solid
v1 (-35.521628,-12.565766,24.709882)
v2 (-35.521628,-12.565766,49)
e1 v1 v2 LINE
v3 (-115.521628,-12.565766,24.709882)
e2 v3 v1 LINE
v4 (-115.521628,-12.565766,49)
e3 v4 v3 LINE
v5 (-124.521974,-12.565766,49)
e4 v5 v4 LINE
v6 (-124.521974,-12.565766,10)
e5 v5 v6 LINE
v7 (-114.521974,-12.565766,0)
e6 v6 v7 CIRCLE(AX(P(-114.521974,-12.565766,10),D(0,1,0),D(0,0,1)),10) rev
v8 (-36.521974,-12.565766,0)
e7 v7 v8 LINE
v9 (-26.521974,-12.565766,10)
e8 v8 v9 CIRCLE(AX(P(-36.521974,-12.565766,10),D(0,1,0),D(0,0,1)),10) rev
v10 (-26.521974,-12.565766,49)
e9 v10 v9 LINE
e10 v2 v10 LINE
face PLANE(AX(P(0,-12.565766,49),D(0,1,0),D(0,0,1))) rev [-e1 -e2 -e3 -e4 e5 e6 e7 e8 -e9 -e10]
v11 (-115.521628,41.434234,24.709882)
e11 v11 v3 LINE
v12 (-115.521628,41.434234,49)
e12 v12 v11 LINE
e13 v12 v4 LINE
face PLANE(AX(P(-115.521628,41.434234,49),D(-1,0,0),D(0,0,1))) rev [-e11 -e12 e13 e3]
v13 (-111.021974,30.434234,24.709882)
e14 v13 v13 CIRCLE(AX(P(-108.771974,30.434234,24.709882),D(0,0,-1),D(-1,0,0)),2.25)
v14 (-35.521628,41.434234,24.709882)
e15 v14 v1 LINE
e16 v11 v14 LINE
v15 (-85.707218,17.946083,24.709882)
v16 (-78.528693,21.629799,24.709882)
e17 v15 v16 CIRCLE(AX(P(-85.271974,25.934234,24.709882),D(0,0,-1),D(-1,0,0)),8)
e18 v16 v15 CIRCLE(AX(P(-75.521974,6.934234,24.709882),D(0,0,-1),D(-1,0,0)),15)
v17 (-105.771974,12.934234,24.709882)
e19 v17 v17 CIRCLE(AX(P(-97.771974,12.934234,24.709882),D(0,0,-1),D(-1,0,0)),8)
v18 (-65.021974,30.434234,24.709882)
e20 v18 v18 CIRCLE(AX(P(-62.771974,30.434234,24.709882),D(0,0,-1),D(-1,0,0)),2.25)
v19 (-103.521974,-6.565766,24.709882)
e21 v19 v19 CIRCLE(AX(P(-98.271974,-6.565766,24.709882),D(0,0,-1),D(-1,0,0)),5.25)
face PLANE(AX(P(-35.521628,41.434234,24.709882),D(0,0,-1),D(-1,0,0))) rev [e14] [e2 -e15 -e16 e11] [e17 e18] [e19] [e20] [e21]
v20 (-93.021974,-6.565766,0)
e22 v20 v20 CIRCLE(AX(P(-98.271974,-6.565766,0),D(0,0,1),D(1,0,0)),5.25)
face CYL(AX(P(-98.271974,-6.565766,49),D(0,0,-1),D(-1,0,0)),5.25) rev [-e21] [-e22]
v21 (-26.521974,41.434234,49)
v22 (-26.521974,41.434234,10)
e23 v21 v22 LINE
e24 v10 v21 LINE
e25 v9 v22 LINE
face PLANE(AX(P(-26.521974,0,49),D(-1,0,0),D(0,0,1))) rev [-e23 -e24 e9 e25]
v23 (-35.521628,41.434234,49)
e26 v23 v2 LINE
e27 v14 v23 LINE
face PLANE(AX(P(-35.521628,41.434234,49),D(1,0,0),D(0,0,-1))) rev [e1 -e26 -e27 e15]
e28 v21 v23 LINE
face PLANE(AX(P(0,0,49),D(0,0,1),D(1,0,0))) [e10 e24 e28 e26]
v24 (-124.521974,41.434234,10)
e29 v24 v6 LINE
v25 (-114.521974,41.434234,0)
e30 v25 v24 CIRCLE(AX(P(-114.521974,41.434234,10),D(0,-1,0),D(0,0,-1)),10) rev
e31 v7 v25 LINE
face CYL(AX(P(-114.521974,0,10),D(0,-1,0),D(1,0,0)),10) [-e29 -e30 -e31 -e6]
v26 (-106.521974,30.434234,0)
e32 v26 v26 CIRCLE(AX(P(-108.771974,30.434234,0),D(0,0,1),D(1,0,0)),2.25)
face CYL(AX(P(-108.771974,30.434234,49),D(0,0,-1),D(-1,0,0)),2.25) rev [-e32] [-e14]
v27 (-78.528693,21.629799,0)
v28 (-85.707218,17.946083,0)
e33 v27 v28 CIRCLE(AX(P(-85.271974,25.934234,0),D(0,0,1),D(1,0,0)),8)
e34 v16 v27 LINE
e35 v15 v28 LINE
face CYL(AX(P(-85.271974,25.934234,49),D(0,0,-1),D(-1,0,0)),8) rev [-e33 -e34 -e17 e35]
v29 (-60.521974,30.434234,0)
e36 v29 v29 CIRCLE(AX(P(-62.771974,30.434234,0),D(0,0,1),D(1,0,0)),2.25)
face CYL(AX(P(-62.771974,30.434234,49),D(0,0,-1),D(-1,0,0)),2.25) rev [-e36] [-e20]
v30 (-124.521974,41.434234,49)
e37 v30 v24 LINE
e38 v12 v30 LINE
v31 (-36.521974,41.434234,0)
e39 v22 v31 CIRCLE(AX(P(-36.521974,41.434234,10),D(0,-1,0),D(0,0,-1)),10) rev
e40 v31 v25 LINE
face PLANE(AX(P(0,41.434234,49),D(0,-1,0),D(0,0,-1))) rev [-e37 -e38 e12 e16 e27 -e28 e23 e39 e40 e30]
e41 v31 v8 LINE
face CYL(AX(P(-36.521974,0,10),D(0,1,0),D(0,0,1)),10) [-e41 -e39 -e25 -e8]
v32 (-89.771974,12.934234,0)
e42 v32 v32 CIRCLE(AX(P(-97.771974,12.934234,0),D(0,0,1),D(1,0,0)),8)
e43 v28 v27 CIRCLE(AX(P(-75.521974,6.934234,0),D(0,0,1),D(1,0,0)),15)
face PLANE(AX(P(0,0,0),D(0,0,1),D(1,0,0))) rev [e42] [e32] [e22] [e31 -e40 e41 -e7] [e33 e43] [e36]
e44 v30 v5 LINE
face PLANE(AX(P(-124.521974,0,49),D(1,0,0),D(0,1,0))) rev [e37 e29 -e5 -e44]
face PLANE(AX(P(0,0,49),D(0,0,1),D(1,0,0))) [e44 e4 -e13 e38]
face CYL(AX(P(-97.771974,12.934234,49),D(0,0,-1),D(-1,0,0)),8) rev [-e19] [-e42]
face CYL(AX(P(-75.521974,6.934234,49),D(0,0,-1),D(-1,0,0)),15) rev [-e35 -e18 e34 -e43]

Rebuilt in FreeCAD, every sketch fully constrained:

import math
import FreeCAD as App
import Part
import Sketcher
from FreeCAD import Vector


def edges_at(feature, points):
    """Names of the edges that pass closest to the given points."""
    edges = feature.Shape.Edges
    near = lambda p: min(range(len(edges)), key=lambda i: edges[i].distToShape(Part.Vertex(*p))[0])
    return sorted({f"Edge{near(p) + 1}" for p in points})

doc = App.newDocument("Part")
body = doc.addObject("PartDesign::Body", "Body")

# Sketch on XY plane
sketch1 = body.newObject("Sketcher::SketchObject", "Sketch")
sketch1.AttachmentSupport = (doc.getObject("XY_Plane"), [""])
sketch1.MapMode = "FlatFace"
sketch1.addGeometry(Part.LineSegment(Vector(-124.5, 41.4, 0), Vector(-124.5, -12.6, 0)), False)
sketch1.addGeometry(Part.LineSegment(Vector(-124.5, -12.6, 0), Vector(-26.5, -12.6, 0)), False)
sketch1.addGeometry(Part.LineSegment(Vector(-26.5, -12.6, 0), Vector(-26.5, 41.4, 0)), False)
sketch1.addGeometry(Part.LineSegment(Vector(-26.5, 41.4, 0), Vector(-124.5, 41.4, 0)), False)
sketch1.addGeometry(Part.Circle(Vector(-98.3, -6.6, 0), Vector(0, 0, 1), 5.2), False)
sketch1.addGeometry(Part.Circle(Vector(-97.8, 12.9, 0), Vector(0, 0, 1), 8), False)
sketch1.addGeometry(Part.Circle(Vector(-108.8, 30.4, 0), Vector(0, 0, 1), 2.2), False)
sketch1.addGeometry(Part.ArcOfCircle(Part.Circle(Vector(-85.3, 25.9, 0), Vector(0, 0, 1), 8), math.radians(-33), math.radians(267)), False)
sketch1.addGeometry(Part.ArcOfCircle(Part.Circle(Vector(-75.5, 6.9, 0), Vector(0, 0, 1), 15), math.radians(133), math.radians(462)), False)
sketch1.addGeometry(Part.Circle(Vector(-62.8, 30.4, 0), Vector(0, 0, 1), 2.2), False)
sketch1.addConstraint(Sketcher.Constraint("Coincident", 0, 2, 1, 1))
sketch1.addConstraint(Sketcher.Constraint("Coincident", 1, 2, 2, 1))
sketch1.addConstraint(Sketcher.Constraint("Coincident", 2, 2, 3, 1))
sketch1.addConstraint(Sketcher.Constraint("Coincident", 3, 2, 0, 1))
sketch1.addConstraint(Sketcher.Constraint("Coincident", 7, 1, 8, 2))
sketch1.addConstraint(Sketcher.Constraint("Coincident", 8, 1, 7, 2))
sketch1.addConstraint(Sketcher.Constraint("Vertical", 0))
sketch1.addConstraint(Sketcher.Constraint("Horizontal", 1))
sketch1.addConstraint(Sketcher.Constraint("Vertical", 2))
sketch1.addConstraint(Sketcher.Constraint("Horizontal", 3))
sketch1.addConstraint(Sketcher.Constraint("Equal", 5, 7))
sketch1.addConstraint(Sketcher.Constraint("Equal", 6, 9))
sketch1.addConstraint(Sketcher.Constraint("Horizontal", 6, 3, 9, 3))
sketch1.addConstraint(Sketcher.Constraint("Diameter", 5, 16.0))
sketch1.addConstraint(Sketcher.Constraint("Radius", 8, 15.0))
sketch1.addConstraint(Sketcher.Constraint("Diameter", 4, 10.5))
sketch1.addConstraint(Sketcher.Constraint("Diameter", 6, 4.5))
sketch1.addConstraint(Sketcher.Constraint("DistanceX", 1, 1, 1, 2, 98.0))
sketch1.addConstraint(Sketcher.Constraint("DistanceY", 0, 2, 0, 1, 54.0))
sketch1.addConstraint(Sketcher.Constraint("DistanceX", 6, 3, 5, 3, 11.0))
sketch1.addConstraint(Sketcher.Constraint("DistanceY", 4, 3, 6, 3, 37.0))
sketch1.addConstraint(Sketcher.Constraint("DistanceY", 5, 3, 7, 3, 13.0))
sketch1.addConstraint(Sketcher.Constraint("DistanceX", 4, 3, 7, 3, 13.0))
sketch1.addConstraint(Sketcher.Constraint("DistanceY", 8, 3, 7, 3, 19.0))
sketch1.addConstraint(Sketcher.Constraint("DistanceX", 5, 3, 9, 3, 35.0))
sketch1.addConstraint(Sketcher.Constraint("DistanceY", 0, 2, 4, 3, 6.0))
sketch1.addConstraint(Sketcher.Constraint("DistanceX", 0, 2, 8, 3, 49.0))
sketch1.addConstraint(Sketcher.Constraint("DistanceX", 4, 3, 5, 3, 0.5))
sketch1.addConstraint(Sketcher.Constraint("DistanceY", 4, 3, 5, 3, 19.5))
sketch1.addConstraint(Sketcher.Constraint("DistanceX", 7, 3, 8, 3, 9.75))
sketch1.addConstraint(Sketcher.Constraint("DistanceY", -1, 1, 7, 1, 21.629799))
sketch1.addConstraint(Sketcher.Constraint("DistanceX", 4, 3, -1, 1, 98.271974))
pad1 = body.newObject("PartDesign::Pad", "Pad")
pad1.Profile = sketch1
pad1.Length = 49
doc.recompute()

fillet = body.newObject("PartDesign::Fillet", "Fillet")
fillet.Base = (pad1, edges_at(pad1, [(-124.522, 14.434, 0), (-26.522, 14.434, 0)]))
fillet.Radius = 10

# Sketch on XZ plane
sketch2 = body.newObject("Sketcher::SketchObject", "Sketch001")
sketch2.AttachmentSupport = (doc.getObject("XZ_Plane"), [""])
sketch2.MapMode = "FlatFace"
sketch2.AttachmentOffset = App.Placement(Vector(0, 0, -41.434234), App.Rotation())
sketch2.addGeometry(Part.Circle(Vector(-50.6, 39, 0), Vector(0, 0, 1), 1.8), False)
sketch2.addGeometry(Part.Circle(Vector(-100.4, 39, 0), Vector(0, 0, 1), 1.8), False)
sketch2.addConstraint(Sketcher.Constraint("Equal", 0, 1))
sketch2.addConstraint(Sketcher.Constraint("Horizontal", 0, 3, 1, 3))
sketch2.addConstraint(Sketcher.Constraint("DistanceY", -1, 1, 0, 3, 39.0))
sketch2.addConstraint(Sketcher.Constraint("DistanceX", 1, 3, 0, 3, 49.84))
sketch2.addConstraint(Sketcher.Constraint("Diameter", 0, 3.621884))
sketch2.addConstraint(Sketcher.Constraint("DistanceX", 0, 3, -1, 1, 50.601974))
pocket1 = body.newObject("PartDesign::Pocket", "Pocket")
pocket1.Profile = sketch2
pocket1.Type = "ThroughAll"
pocket1.Reversed = True

# Sketch on XZ plane
sketch3 = body.newObject("Sketcher::SketchObject", "Sketch002")
sketch3.AttachmentSupport = (doc.getObject("XZ_Plane"), [""])
sketch3.MapMode = "FlatFace"
sketch3.AttachmentOffset = App.Placement(Vector(0, 0, 12.565766), App.Rotation())
sketch3.addGeometry(Part.LineSegment(Vector(-116, 49, 0), Vector(-116, 25, 0)), False)
sketch3.addGeometry(Part.LineSegment(Vector(-116, 25, 0), Vector(-36, 25, 0)), False)
sketch3.addGeometry(Part.LineSegment(Vector(-36, 25, 0), Vector(-36, 49, 0)), False)
sketch3.addGeometry(Part.LineSegment(Vector(-36, 49, 0), Vector(-116, 49, 0)), False)
sketch3.addConstraint(Sketcher.Constraint("Coincident", 0, 2, 1, 1))
sketch3.addConstraint(Sketcher.Constraint("Coincident", 1, 2, 2, 1))
sketch3.addConstraint(Sketcher.Constraint("Coincident", 2, 2, 3, 1))
sketch3.addConstraint(Sketcher.Constraint("Coincident", 3, 2, 0, 1))
sketch3.addConstraint(Sketcher.Constraint("Vertical", 0))
sketch3.addConstraint(Sketcher.Constraint("Horizontal", 1))
sketch3.addConstraint(Sketcher.Constraint("Vertical", 2))
sketch3.addConstraint(Sketcher.Constraint("Horizontal", 3))
sketch3.addConstraint(Sketcher.Constraint("DistanceX", 1, 1, 1, 2, 80.0))
sketch3.addConstraint(Sketcher.Constraint("DistanceY", -1, 1, 2, 2, 49.0))
sketch3.addConstraint(Sketcher.Constraint("DistanceY", 0, 2, 0, 1, 24.290118))
sketch3.addConstraint(Sketcher.Constraint("DistanceX", 0, 2, -1, 1, 115.521628))
pocket2 = body.newObject("PartDesign::Pocket", "Pocket001")
pocket2.Profile = sketch3
pocket2.Type = "ThroughAll"

doc.recompute()
